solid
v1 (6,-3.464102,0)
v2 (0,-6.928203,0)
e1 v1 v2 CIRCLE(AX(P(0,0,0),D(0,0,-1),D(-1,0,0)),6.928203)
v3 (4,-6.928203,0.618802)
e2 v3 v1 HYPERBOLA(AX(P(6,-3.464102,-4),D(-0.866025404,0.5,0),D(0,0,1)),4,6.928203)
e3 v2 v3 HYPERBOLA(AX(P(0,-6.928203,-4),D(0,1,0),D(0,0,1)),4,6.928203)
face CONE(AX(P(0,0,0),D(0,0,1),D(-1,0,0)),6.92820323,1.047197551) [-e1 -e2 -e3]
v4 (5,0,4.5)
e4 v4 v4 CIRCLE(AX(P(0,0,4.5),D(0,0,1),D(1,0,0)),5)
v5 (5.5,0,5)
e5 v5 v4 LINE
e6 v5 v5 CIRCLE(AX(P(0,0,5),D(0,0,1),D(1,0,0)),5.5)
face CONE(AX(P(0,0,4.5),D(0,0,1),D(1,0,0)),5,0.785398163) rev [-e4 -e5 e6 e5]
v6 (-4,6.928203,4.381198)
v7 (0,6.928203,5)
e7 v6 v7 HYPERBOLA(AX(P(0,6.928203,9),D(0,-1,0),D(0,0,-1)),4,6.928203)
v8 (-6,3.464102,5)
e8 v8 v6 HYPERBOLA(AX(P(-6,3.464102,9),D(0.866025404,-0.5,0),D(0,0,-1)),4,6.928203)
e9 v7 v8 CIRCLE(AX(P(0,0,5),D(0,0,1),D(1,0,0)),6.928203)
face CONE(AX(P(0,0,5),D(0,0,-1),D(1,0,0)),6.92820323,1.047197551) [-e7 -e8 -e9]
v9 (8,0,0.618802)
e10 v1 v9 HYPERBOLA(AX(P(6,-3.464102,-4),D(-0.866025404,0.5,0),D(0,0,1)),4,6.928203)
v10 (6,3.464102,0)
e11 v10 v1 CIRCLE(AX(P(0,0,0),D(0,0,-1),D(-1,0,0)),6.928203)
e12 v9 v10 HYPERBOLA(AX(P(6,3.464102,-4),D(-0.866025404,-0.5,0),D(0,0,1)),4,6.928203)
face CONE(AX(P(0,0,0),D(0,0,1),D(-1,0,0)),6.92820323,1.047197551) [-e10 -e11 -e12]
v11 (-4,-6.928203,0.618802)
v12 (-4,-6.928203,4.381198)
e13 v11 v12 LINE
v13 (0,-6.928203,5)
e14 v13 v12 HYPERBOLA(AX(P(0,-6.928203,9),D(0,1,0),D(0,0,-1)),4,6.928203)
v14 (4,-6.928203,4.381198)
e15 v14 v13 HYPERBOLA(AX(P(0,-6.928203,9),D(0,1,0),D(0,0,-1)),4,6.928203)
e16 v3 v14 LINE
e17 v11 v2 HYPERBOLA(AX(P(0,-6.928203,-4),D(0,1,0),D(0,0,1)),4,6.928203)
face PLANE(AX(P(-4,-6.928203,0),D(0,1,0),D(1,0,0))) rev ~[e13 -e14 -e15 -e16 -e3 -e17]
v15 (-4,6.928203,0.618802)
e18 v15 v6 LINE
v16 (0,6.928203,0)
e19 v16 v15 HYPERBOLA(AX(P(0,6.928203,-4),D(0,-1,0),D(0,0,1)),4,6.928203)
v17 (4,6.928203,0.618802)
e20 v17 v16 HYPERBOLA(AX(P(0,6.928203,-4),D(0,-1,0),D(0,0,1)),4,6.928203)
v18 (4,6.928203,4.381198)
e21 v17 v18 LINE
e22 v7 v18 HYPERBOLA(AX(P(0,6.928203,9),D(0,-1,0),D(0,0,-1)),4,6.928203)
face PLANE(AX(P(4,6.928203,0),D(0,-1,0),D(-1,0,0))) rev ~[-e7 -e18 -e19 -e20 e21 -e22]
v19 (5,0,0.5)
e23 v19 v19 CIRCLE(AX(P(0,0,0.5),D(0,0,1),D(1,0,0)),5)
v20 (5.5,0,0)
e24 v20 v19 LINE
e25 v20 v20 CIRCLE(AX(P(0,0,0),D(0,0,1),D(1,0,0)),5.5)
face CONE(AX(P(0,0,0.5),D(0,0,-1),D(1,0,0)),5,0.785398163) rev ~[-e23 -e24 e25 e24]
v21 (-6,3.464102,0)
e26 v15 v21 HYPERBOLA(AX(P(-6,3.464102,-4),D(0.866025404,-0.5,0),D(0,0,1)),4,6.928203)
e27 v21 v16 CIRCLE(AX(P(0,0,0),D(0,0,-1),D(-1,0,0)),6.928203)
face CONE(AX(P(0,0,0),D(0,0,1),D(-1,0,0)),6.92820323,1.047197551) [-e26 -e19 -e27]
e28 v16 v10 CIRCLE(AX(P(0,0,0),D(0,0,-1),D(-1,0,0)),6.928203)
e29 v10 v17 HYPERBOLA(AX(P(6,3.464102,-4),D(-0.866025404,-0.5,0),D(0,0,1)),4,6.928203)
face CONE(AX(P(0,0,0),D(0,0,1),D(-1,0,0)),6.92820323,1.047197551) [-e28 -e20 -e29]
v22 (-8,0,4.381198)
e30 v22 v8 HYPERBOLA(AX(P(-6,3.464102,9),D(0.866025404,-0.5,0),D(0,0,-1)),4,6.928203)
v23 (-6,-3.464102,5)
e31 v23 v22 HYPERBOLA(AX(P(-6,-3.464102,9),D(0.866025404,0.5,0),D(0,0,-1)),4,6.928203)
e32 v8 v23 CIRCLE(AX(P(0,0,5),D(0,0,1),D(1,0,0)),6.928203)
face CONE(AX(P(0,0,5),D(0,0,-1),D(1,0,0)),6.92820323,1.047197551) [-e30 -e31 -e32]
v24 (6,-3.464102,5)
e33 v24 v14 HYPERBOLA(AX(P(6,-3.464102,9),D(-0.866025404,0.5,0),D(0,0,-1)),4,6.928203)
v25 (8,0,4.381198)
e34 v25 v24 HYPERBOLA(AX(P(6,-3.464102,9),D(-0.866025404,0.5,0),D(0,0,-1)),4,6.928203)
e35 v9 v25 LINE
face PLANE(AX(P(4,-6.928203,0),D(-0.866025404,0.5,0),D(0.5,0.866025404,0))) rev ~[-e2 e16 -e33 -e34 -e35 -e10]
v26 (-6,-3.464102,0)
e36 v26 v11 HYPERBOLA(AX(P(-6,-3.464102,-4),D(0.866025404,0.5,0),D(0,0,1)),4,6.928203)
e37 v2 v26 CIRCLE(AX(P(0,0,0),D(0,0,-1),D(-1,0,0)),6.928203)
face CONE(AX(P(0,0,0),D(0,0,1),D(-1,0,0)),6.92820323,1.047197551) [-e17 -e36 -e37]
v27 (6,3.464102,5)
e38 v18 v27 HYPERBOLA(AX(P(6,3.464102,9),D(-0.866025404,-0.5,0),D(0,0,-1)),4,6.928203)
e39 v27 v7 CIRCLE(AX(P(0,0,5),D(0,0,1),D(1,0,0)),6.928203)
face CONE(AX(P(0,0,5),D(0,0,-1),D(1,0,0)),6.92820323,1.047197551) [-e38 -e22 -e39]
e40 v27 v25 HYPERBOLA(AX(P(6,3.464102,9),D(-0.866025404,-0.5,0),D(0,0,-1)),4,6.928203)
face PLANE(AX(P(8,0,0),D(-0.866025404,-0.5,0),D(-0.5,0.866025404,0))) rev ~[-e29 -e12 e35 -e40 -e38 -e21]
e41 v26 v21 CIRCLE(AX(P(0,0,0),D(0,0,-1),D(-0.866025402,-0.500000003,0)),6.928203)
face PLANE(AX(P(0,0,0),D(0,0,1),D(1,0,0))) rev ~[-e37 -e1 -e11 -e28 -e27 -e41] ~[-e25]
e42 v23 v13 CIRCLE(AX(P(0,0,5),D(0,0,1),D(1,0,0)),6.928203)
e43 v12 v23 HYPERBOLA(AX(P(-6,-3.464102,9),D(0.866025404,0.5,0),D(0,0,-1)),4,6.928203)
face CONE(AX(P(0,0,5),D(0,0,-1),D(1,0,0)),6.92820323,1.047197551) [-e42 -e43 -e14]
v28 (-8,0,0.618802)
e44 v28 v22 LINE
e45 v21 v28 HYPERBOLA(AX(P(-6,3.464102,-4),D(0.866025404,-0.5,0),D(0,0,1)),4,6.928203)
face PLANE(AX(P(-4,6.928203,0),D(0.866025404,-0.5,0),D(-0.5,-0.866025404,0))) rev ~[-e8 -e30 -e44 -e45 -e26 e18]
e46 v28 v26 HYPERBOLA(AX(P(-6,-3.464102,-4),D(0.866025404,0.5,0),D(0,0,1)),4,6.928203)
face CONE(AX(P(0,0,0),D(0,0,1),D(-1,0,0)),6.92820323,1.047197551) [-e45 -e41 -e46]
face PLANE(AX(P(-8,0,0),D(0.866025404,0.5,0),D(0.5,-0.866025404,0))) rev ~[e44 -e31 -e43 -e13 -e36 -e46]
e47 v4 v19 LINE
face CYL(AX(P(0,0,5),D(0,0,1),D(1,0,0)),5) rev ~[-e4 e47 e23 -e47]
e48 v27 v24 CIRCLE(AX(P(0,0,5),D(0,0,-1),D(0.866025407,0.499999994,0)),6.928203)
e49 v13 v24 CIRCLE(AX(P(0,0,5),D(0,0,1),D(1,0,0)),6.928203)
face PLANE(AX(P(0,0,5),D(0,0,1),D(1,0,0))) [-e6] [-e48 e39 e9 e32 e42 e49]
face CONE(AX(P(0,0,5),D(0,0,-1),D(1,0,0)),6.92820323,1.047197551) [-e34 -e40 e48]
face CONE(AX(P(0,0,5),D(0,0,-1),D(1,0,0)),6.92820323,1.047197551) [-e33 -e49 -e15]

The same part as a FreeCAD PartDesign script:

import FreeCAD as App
import Part
import Sketcher
from FreeCAD import Vector
Q = App.Units.Quantity


def edges_at(feature, points):
    """Names of the edges that pass closest to the given points."""
    edges = feature.Shape.Edges
    near = lambda p: min(range(len(edges)), key=lambda i: edges[i].distToShape(Part.Vertex(*p))[0])
    return sorted({f"Edge{near(p) + 1}" for p in points})


def faces_at(feature, points):
    """Names of the faces that lie closest to the given points."""
    faces = feature.Shape.Faces
    near = lambda p: min(range(len(faces)), key=lambda i: faces[i].distToShape(Part.Vertex(*p))[0])
    return sorted({f"Face{near(p) + 1}" for p in points})


def add_polygon(sketch, points):
    """Adds a closed chain of lines whose ends are joined by coincident constraints."""
    first, n = sketch.GeometryCount, len(points)
    for a, b in zip(points, points[1:] + points[:1]):
        sketch.addGeometry(Part.LineSegment(App.Vector(*a, 0), App.Vector(*b, 0)), False)
    for i in range(n):
        sketch.addConstraint(Sketcher.Constraint("Coincident", first + i, 2, first + (i + 1) % n, 1))

doc = App.newDocument("Part")
body = doc.addObject("PartDesign::Body", "Body")

# Sketch on XY plane
sketch1 = body.newObject("Sketcher::SketchObject", "Sketch")
sketch1.AttachmentSupport = (doc.getObject("XY_Plane"), [""])
sketch1.MapMode = "FlatFace"
add_polygon(sketch1, [(-4, 7), (-8, 0), (-4, -7), (4, -7), (8, 0), (4, 7)])  # lines 0-5
sketch1.addConstraint([
    Sketcher.Constraint("Horizontal", 2),
    Sketcher.Constraint("Horizontal", 5),
    Sketcher.Constraint("Symmetric", 0, 2, 3, 2, -1, 1),
    Sketcher.Constraint("Symmetric", 1, 2, 4, 2, -1, 1),
    Sketcher.Constraint("PointOnObject", 0, 2, -1),
    Sketcher.Constraint("Parallel", 0, 3),
    Sketcher.Constraint("Vertical", 2, 2, 4, 2),
    Sketcher.Constraint("DistanceX", 2, 1, 2, 2, Q("8 mm")),
    Sketcher.Constraint("Angle", 0, Q("-120 deg")),
    Sketcher.Constraint("Distance", 0, Q("8 mm")),
])
pad1 = body.newObject("PartDesign::Pad", "Pad")
pad1.Profile = sketch1
pad1.Length = 5

# Sketch on XY plane
sketch2 = body.newObject("Sketcher::SketchObject", "Sketch001")
sketch2.AttachmentSupport = (doc.getObject("XY_Plane"), [""])
sketch2.MapMode = "FlatFace"
sketch2.AttachmentOffset = App.Placement(Vector(0, 0, 5), App.Rotation())
sketch2.addGeometry(Part.Circle(Vector(0, 0, 0), Vector(0, 0, 1), 5), False)
sketch2.addConstraint([
    Sketcher.Constraint("Coincident", 0, 3, -1, 1),
    Sketcher.Constraint("Diameter", 0, Q("10 mm")),
])
pocket1 = body.newObject("PartDesign::Pocket", "Pocket")
pocket1.Profile = sketch2
pocket1.Length = 5
doc.recompute()

chamfer = body.newObject("PartDesign::Chamfer", "Chamfer")
chamfer.Base = (pocket1, edges_at(pocket1, [(-5, 0, 0), (-5, 0, 5)]))
chamfer.Size = 0.5
body2 = doc.addObject("PartDesign::Body", "Body001")

# Sketch on XY plane
sketch3 = body2.newObject("Sketcher::SketchObject", "Sketch002")
sketch3.AttachmentSupport = (doc.getObject("XY_Plane001"), [""])
sketch3.MapMode = "FlatFace"
add_polygon(sketch3, [(28, 27), (28, -27), (-28, -27), (-28, 27)])  # lines 0-3
sketch3.addGeometry(Part.Circle(Vector(0, 0, 0), Vector(0, 0, 1), 7), False)  # 4
sketch3.addConstraint([
    Sketcher.Constraint("Vertical", 0),
    Sketcher.Constraint("Horizontal", 1),
    Sketcher.Constraint("Vertical", 2),
    Sketcher.Constraint("Horizontal", 3),
    Sketcher.Constraint("Coincident", 4, 3, -1, 1),
    Sketcher.Constraint("Symmetric", 0, 2, 2, 2, -1, 1),
    Sketcher.Constraint("DistanceX", 1, 2, 1, 1, Q("56.99 mm")),
    Sketcher.Constraint("DistanceY", 0, 2, 0, 1, Q("54.846 mm")),
    Sketcher.Constraint("Diameter", 4, Q("13.856406 mm")),
])
pad2 = body2.newObject("PartDesign::Pad", "Pad001")
pad2.Profile = sketch3
pad2.Length = 10
doc.recompute()

draft = body2.newObject("PartDesign::Draft", "Draft")
draft.Base = (pad2, faces_at(pad2, [
    (0, -27.423, 5),
    (-28.495, 0, 5),
    (0, 27.423, 5),
    (28.495, 0, 5),
    (6.928, 0, 5),
]))
draft.NeutralPlane = (doc.getObject("XY_Plane001"), [""])
draft.Angle = 60
draft.Reversed = False
doc.recompute()

boolean = body.newObject("PartDesign::Boolean", "Boolean")
boolean.Type = "Cut"
boolean.addObjects([body2])
body3 = doc.addObject("PartDesign::Body", "Body002")

# Sketch on XY plane
sketch4 = body3.newObject("Sketcher::SketchObject", "Sketch003")
sketch4.AttachmentSupport = (doc.getObject("XY_Plane002"), [""])
sketch4.MapMode = "FlatFace"
sketch4.AttachmentOffset = App.Placement(Vector(0, 0, 5), App.Rotation())
add_polygon(sketch4, [(-28, 27), (-28, -27), (28, -27), (28, 27)])  # lines 0-3
sketch4.addGeometry(Part.Circle(Vector(0, 0, 0), Vector(0, 0, 1), 7), False)  # 4
sketch4.addConstraint([
    Sketcher.Constraint("Vertical", 0),
    Sketcher.Constraint("Horizontal", 1),
    Sketcher.Constraint("Vertical", 2),
    Sketcher.Constraint("Horizontal", 3),
    Sketcher.Constraint("Coincident", 4, 3, -1, 1),
    Sketcher.Constraint("Symmetric", 0, 2, 2, 2, -1, 1),
    Sketcher.Constraint("DistanceX", 1, 1, 1, 2, Q("56.99 mm")),
    Sketcher.Constraint("DistanceY", 0, 2, 0, 1, Q("54.846 mm")),
    Sketcher.Constraint("Diameter", 4, Q("13.856406 mm")),
])
pad3 = body3.newObject("PartDesign::Pad", "Pad002")
pad3.Profile = sketch4
pad3.Length = 10
pad3.Reversed = True
doc.recompute()

datumplane = body3.newObject("PartDesign::Plane", "DatumPlane")
datumplane.AttachmentSupport = (doc.getObject("XY_Plane002"), [""])
datumplane.MapMode = "FlatFace"
datumplane.AttachmentOffset = App.Placement(Vector(0, 0, 5), App.Rotation())
draft2 = body3.newObject("PartDesign::Draft", "Draft001")
draft2.Base = (pad3, faces_at(pad3, [
    (0, -27.423, 0),
    (28.495, 0, 0),
    (0, 27.423, 0),
    (-28.495, 0, 0),
    (-6.928, 0, 0),
]))
draft2.NeutralPlane = (datumplane, [""])
draft2.Angle = 60
draft2.Reversed = True
doc.recompute()

boolean2 = body.newObject("PartDesign::Boolean", "Boolean001")
boolean2.Type = "Cut"
boolean2.addObjects([body3])

doc.recompute()
